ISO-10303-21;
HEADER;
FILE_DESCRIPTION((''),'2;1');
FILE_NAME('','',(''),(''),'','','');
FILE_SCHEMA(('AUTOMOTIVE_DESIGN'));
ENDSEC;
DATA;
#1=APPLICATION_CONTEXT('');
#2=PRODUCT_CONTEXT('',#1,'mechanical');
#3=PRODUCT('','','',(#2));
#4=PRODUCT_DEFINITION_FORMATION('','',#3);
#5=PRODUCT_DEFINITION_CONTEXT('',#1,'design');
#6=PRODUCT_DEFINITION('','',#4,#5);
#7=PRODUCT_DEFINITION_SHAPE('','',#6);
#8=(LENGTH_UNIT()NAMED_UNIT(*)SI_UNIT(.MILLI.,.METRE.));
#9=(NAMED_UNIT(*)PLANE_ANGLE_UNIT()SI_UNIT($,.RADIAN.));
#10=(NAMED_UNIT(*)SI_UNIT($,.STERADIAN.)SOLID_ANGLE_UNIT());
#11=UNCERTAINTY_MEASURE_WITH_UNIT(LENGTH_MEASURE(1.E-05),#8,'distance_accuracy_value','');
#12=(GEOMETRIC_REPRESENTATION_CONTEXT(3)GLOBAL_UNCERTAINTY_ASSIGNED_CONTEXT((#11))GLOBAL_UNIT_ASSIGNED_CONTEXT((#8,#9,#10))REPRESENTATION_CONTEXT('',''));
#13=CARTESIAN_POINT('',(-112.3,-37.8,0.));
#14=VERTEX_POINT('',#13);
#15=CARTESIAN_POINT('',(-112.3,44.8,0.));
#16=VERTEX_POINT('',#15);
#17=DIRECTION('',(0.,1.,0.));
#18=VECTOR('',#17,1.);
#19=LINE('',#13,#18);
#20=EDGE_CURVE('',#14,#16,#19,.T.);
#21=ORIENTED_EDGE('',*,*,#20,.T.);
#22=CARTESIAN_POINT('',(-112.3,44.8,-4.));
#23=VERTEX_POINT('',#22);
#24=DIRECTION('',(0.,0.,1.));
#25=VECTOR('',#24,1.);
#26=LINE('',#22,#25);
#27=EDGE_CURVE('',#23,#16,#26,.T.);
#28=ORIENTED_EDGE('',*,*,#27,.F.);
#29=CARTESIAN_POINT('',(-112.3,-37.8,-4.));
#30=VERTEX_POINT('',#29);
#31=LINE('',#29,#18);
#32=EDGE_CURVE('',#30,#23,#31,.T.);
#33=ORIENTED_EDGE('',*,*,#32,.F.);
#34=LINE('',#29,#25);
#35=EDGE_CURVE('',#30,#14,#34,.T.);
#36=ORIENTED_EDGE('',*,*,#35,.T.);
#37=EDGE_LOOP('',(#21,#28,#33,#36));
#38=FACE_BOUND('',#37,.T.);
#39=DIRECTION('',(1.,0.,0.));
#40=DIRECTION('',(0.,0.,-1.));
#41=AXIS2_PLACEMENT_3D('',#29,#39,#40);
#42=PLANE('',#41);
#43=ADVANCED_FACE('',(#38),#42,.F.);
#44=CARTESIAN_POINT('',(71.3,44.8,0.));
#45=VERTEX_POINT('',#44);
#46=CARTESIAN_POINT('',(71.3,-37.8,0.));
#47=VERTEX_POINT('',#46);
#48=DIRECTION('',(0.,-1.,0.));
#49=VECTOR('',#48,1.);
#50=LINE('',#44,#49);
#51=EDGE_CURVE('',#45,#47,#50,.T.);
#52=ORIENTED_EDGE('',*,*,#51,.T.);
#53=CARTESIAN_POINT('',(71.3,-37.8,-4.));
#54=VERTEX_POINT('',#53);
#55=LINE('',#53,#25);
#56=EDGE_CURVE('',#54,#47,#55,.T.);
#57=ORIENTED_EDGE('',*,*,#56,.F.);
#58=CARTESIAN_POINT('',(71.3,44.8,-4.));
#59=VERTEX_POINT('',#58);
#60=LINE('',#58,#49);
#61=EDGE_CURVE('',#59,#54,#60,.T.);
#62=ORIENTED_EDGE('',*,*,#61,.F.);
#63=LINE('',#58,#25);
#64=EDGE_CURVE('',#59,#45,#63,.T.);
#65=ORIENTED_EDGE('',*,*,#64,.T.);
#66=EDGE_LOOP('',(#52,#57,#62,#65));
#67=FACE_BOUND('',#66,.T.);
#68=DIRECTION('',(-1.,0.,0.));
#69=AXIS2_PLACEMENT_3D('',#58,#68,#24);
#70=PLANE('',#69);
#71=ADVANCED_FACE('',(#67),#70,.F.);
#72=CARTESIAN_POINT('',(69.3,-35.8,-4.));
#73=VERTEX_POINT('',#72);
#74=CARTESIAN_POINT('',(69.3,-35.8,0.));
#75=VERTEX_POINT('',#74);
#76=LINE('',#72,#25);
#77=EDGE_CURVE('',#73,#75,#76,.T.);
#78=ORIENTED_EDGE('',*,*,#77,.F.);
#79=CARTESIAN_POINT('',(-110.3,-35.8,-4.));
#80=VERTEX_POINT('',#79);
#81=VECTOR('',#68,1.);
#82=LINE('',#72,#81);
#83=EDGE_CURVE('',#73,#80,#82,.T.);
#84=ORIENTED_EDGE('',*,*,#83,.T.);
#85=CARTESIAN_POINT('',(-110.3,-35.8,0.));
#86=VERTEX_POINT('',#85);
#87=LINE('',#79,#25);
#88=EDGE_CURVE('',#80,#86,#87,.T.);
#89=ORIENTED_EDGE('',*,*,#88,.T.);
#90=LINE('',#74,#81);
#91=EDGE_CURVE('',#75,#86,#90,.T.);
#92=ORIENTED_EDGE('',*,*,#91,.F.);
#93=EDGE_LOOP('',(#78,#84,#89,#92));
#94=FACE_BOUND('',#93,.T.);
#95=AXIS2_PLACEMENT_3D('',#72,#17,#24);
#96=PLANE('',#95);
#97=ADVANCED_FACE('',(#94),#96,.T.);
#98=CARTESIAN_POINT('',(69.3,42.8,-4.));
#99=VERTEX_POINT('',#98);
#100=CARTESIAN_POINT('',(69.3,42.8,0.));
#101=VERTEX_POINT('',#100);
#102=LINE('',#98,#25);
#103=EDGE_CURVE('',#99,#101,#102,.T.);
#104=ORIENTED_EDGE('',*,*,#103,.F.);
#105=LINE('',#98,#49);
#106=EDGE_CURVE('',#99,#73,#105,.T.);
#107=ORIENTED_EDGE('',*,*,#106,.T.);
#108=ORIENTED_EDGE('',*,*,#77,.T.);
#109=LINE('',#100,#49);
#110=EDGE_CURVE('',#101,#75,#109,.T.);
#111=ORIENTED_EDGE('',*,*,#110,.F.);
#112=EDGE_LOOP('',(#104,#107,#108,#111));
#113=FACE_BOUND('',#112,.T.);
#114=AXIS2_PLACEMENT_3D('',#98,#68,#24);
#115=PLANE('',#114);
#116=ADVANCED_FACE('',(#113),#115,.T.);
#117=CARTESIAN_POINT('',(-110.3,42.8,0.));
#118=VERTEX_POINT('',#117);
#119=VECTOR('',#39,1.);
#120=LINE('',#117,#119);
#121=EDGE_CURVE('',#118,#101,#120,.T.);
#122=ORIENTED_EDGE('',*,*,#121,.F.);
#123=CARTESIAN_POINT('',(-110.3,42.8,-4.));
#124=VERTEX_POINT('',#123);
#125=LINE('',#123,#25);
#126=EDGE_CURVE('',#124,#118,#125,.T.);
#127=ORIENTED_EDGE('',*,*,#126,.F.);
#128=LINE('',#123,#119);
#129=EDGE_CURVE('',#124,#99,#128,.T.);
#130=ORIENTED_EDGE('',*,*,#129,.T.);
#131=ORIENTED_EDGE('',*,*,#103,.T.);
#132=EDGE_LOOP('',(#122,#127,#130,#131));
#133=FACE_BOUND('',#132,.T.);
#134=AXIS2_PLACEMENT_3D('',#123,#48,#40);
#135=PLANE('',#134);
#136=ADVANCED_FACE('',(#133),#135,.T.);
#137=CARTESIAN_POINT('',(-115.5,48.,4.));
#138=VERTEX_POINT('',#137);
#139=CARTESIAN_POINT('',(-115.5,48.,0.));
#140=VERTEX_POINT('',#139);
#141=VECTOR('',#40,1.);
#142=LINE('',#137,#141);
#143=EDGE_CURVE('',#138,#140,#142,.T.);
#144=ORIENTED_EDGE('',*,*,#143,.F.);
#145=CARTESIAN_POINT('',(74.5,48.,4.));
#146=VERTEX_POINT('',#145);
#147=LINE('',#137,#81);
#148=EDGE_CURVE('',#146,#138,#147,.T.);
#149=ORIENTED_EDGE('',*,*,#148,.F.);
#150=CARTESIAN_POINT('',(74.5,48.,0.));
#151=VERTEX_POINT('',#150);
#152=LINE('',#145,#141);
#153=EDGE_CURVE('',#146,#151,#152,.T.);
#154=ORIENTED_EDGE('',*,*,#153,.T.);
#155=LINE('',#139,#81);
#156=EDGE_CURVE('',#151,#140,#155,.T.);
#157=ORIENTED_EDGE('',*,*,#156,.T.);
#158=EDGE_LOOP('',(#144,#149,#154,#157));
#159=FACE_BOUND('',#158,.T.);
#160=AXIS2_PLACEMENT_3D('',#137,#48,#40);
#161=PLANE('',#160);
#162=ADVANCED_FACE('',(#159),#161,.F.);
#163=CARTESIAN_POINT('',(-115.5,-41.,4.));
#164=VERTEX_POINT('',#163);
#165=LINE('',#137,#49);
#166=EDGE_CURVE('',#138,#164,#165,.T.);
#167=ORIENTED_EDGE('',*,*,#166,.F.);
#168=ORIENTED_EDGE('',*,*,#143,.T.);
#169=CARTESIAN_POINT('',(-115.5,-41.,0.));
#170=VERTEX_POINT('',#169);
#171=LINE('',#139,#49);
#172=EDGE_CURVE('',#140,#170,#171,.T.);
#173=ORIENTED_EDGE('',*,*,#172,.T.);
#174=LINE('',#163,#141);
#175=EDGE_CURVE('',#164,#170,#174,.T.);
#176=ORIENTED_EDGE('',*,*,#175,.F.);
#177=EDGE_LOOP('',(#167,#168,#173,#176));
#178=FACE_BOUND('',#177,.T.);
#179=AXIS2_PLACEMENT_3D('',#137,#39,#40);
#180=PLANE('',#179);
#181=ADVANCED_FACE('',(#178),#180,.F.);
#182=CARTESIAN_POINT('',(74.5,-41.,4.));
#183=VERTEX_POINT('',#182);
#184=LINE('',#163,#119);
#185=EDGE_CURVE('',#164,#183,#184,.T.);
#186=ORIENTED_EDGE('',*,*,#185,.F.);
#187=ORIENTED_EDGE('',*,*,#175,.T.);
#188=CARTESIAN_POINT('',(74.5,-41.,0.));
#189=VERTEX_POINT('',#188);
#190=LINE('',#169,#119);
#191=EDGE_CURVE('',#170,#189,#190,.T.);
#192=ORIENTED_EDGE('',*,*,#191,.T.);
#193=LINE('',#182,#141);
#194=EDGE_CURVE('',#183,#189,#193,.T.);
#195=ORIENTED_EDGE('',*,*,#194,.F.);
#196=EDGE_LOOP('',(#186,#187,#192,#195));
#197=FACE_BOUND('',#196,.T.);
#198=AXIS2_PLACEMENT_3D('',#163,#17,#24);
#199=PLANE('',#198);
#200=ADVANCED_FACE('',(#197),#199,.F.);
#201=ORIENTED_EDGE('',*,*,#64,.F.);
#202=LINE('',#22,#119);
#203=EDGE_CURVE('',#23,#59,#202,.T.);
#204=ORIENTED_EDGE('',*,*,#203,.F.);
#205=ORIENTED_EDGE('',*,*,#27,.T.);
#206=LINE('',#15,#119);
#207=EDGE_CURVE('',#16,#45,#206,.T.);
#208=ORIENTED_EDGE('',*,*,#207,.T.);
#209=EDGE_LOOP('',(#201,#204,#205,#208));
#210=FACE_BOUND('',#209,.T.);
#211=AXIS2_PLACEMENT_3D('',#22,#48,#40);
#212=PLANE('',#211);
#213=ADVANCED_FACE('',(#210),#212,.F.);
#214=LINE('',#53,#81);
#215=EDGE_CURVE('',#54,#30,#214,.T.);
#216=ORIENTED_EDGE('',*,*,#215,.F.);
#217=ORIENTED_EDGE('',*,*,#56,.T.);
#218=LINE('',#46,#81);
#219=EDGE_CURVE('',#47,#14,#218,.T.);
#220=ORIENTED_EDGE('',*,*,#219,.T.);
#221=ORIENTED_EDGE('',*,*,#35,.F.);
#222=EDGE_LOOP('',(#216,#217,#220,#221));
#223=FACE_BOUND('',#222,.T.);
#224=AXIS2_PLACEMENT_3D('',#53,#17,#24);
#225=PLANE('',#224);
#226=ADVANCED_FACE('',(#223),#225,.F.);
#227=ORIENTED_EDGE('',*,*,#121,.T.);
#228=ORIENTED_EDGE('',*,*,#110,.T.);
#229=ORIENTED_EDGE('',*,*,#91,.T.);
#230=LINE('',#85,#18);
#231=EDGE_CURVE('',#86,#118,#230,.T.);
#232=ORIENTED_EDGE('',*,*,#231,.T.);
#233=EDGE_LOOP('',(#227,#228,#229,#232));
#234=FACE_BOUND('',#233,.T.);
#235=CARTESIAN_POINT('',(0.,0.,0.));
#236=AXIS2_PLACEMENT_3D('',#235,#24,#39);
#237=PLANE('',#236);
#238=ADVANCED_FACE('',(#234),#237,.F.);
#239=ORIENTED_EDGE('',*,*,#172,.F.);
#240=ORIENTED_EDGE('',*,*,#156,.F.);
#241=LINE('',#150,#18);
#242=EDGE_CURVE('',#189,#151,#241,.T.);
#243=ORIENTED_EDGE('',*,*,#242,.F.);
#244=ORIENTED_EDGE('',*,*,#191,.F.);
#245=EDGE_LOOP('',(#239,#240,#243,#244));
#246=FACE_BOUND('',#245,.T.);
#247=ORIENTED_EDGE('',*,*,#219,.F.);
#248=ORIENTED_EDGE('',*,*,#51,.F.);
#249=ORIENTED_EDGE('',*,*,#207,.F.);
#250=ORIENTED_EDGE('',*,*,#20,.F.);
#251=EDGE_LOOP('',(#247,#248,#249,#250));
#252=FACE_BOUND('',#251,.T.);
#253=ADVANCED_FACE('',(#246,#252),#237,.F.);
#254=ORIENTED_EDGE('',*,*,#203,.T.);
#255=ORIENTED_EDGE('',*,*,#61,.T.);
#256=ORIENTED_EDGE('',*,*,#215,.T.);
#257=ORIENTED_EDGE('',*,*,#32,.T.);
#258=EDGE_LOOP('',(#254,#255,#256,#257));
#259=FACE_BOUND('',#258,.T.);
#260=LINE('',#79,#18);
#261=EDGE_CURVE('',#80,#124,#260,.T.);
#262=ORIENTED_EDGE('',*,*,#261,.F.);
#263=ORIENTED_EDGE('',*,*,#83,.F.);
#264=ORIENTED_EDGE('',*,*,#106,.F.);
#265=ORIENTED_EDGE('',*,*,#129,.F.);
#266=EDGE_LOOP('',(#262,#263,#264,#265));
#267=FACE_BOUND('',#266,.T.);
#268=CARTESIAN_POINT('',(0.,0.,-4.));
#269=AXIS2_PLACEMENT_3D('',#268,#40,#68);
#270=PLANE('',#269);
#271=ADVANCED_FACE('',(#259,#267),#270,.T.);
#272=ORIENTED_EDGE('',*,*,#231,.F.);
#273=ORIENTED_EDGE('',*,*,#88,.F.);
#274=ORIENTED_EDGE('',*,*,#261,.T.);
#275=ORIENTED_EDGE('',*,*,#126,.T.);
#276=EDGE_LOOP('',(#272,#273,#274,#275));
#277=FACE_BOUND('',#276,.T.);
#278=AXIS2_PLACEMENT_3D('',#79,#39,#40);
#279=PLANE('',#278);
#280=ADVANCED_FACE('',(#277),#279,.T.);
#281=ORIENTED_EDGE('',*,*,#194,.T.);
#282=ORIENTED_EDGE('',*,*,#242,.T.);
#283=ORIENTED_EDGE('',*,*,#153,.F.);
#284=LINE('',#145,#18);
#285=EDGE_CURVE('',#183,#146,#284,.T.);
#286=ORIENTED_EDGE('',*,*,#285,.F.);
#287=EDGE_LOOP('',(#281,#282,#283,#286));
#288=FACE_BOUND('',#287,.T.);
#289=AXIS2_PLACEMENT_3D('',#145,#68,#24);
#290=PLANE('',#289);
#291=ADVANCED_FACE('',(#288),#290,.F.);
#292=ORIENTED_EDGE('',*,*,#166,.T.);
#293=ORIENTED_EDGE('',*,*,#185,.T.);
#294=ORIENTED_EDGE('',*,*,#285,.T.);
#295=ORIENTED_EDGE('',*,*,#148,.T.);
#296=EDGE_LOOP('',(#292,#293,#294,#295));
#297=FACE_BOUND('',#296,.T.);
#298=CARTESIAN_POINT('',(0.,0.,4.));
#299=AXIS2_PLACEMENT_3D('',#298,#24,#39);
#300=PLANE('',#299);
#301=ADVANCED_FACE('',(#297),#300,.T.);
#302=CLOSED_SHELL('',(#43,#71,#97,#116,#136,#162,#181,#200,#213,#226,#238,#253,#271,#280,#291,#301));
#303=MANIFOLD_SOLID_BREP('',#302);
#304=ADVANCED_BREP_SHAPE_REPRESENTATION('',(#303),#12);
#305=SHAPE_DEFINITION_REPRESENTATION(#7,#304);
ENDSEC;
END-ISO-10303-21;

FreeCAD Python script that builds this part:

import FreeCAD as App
import Part
import Sketcher

V = App.Vector
Q = App.Units.Quantity

doc = App.newDocument("Part")
body = doc.addObject("PartDesign::Body", "Body")

sketch1 = body.newObject("Sketcher::SketchObject", "Sketch")
sketch1.AttachmentSupport = (doc.getObject("XY_Plane"), [""])
sketch1.MapMode = "FlatFace"
sketch1.addGeometry(Part.LineSegment(V(-115.5, 48, 0), V(-115.5, -41, 0)), False)
sketch1.addGeometry(Part.LineSegment(V(-115.5, -41, 0), V(74.5, -41, 0)), False)
sketch1.addGeometry(Part.LineSegment(V(74.5, -41, 0), V(74.5, 48, 0)), False)
sketch1.addGeometry(Part.LineSegment(V(74.5, 48, 0), V(-115.5, 48, 0)), False)
sketch1.addConstraint(Sketcher.Constraint("Coincident", 0, 2, 1, 1))
sketch1.addConstraint(Sketcher.Constraint("Coincident", 1, 2, 2, 1))
sketch1.addConstraint(Sketcher.Constraint("Coincident", 2, 2, 3, 1))
sketch1.addConstraint(Sketcher.Constraint("Coincident", 3, 2, 0, 1))
sketch1.addConstraint(Sketcher.Constraint("Vertical", 0))
sketch1.addConstraint(Sketcher.Constraint("Horizontal", 1))
sketch1.addConstraint(Sketcher.Constraint("Vertical", 2))
sketch1.addConstraint(Sketcher.Constraint("Horizontal", 3))
sketch1.addConstraint(Sketcher.Constraint("DistanceX", 1, 1, 1, 2, Q("190 mm")))
sketch1.addConstraint(Sketcher.Constraint("DistanceY", 0, 2, 0, 1, Q("89 mm")))
sketch1.addConstraint(Sketcher.Constraint("DistanceY", 0, 2, -1, 1, Q("41 mm")))
sketch1.addConstraint(Sketcher.Constraint("DistanceX", 0, 2, -1, 1, Q("115.5 mm")))
pad1 = body.newObject("PartDesign::Pad", "Pad")
pad1.Profile = sketch1
pad1.Length = 4

sketch2 = body.newObject("Sketcher::SketchObject", "Sketch001")
sketch2.AttachmentSupport = (doc.getObject("XY_Plane"), [""])
sketch2.MapMode = "FlatFace"
sketch2.addGeometry(Part.LineSegment(V(71.3, 44.8, 0), V(71.3, -37.8, 0)), False)
sketch2.addGeometry(Part.LineSegment(V(71.3, -37.8, 0), V(-112.3, -37.8, 0)), False)
sketch2.addGeometry(Part.LineSegment(V(-112.3, -37.8, 0), V(-112.3, 44.8, 0)), False)
sketch2.addGeometry(Part.LineSegment(V(-112.3, 44.8, 0), V(71.3, 44.8, 0)), False)
sketch2.addGeometry(Part.LineSegment(V(-110.3, -35.8, 0), V(69.3, -35.8, 0)), False)
sketch2.addGeometry(Part.LineSegment(V(69.3, -35.8, 0), V(69.3, 42.8, 0)), False)
sketch2.addGeometry(Part.LineSegment(V(69.3, 42.8, 0), V(-110.3, 42.8, 0)), False)
sketch2.addGeometry(Part.LineSegment(V(-110.3, 42.8, 0), V(-110.3, -35.8, 0)), False)
sketch2.addConstraint(Sketcher.Constraint("Coincident", 0, 2, 1, 1))
sketch2.addConstraint(Sketcher.Constraint("Coincident", 1, 2, 2, 1))
sketch2.addConstraint(Sketcher.Constraint("Coincident", 2, 2, 3, 1))
sketch2.addConstraint(Sketcher.Constraint("Coincident", 3, 2, 0, 1))
sketch2.addConstraint(Sketcher.Constraint("Coincident", 4, 2, 5, 1))
sketch2.addConstraint(Sketcher.Constraint("Coincident", 5, 2, 6, 1))
sketch2.addConstraint(Sketcher.Constraint("Coincident", 6, 2, 7, 1))
sketch2.addConstraint(Sketcher.Constraint("Coincident", 7, 2, 4, 1))
sketch2.addConstraint(Sketcher.Constraint("Vertical", 0))
sketch2.addConstraint(Sketcher.Constraint("Horizontal", 1))
sketch2.addConstraint(Sketcher.Constraint("Vertical", 2))
sketch2.addConstraint(Sketcher.Constraint("Horizontal", 3))
sketch2.addConstraint(Sketcher.Constraint("Horizontal", 4))
sketch2.addConstraint(Sketcher.Constraint("Vertical", 5))
sketch2.addConstraint(Sketcher.Constraint("Horizontal", 6))
sketch2.addConstraint(Sketcher.Constraint("Vertical", 7))
sketch2.addConstraint(Sketcher.Constraint("DistanceX", 1, 2, 1, 1, Q("183.6 mm")))
sketch2.addConstraint(Sketcher.Constraint("DistanceX", 4, 1, 4, 2, Q("179.6 mm")))
sketch2.addConstraint(Sketcher.Constraint("DistanceY", 0, 2, 0, 1, Q("82.6 mm")))
sketch2.addConstraint(Sketcher.Constraint("DistanceY", 5, 1, 5, 2, Q("78.6 mm")))
sketch2.addConstraint(Sketcher.Constraint("DistanceX", 4, 2, 0, 2, Q("2 mm")))
sketch2.addConstraint(Sketcher.Constraint("DistanceY", 0, 2, 4, 2, Q("2 mm")))
sketch2.addConstraint(Sketcher.Constraint("DistanceX", -1, 1, 0, 2, Q("71.3 mm")))
sketch2.addConstraint(Sketcher.Constraint("DistanceY", 0, 2, -1, 1, Q("37.8 mm")))
pad2 = body.newObject("PartDesign::Pad", "Pad001")
pad2.Profile = sketch2
pad2.Length = 4
pad2.Reversed = True

doc.recompute()
